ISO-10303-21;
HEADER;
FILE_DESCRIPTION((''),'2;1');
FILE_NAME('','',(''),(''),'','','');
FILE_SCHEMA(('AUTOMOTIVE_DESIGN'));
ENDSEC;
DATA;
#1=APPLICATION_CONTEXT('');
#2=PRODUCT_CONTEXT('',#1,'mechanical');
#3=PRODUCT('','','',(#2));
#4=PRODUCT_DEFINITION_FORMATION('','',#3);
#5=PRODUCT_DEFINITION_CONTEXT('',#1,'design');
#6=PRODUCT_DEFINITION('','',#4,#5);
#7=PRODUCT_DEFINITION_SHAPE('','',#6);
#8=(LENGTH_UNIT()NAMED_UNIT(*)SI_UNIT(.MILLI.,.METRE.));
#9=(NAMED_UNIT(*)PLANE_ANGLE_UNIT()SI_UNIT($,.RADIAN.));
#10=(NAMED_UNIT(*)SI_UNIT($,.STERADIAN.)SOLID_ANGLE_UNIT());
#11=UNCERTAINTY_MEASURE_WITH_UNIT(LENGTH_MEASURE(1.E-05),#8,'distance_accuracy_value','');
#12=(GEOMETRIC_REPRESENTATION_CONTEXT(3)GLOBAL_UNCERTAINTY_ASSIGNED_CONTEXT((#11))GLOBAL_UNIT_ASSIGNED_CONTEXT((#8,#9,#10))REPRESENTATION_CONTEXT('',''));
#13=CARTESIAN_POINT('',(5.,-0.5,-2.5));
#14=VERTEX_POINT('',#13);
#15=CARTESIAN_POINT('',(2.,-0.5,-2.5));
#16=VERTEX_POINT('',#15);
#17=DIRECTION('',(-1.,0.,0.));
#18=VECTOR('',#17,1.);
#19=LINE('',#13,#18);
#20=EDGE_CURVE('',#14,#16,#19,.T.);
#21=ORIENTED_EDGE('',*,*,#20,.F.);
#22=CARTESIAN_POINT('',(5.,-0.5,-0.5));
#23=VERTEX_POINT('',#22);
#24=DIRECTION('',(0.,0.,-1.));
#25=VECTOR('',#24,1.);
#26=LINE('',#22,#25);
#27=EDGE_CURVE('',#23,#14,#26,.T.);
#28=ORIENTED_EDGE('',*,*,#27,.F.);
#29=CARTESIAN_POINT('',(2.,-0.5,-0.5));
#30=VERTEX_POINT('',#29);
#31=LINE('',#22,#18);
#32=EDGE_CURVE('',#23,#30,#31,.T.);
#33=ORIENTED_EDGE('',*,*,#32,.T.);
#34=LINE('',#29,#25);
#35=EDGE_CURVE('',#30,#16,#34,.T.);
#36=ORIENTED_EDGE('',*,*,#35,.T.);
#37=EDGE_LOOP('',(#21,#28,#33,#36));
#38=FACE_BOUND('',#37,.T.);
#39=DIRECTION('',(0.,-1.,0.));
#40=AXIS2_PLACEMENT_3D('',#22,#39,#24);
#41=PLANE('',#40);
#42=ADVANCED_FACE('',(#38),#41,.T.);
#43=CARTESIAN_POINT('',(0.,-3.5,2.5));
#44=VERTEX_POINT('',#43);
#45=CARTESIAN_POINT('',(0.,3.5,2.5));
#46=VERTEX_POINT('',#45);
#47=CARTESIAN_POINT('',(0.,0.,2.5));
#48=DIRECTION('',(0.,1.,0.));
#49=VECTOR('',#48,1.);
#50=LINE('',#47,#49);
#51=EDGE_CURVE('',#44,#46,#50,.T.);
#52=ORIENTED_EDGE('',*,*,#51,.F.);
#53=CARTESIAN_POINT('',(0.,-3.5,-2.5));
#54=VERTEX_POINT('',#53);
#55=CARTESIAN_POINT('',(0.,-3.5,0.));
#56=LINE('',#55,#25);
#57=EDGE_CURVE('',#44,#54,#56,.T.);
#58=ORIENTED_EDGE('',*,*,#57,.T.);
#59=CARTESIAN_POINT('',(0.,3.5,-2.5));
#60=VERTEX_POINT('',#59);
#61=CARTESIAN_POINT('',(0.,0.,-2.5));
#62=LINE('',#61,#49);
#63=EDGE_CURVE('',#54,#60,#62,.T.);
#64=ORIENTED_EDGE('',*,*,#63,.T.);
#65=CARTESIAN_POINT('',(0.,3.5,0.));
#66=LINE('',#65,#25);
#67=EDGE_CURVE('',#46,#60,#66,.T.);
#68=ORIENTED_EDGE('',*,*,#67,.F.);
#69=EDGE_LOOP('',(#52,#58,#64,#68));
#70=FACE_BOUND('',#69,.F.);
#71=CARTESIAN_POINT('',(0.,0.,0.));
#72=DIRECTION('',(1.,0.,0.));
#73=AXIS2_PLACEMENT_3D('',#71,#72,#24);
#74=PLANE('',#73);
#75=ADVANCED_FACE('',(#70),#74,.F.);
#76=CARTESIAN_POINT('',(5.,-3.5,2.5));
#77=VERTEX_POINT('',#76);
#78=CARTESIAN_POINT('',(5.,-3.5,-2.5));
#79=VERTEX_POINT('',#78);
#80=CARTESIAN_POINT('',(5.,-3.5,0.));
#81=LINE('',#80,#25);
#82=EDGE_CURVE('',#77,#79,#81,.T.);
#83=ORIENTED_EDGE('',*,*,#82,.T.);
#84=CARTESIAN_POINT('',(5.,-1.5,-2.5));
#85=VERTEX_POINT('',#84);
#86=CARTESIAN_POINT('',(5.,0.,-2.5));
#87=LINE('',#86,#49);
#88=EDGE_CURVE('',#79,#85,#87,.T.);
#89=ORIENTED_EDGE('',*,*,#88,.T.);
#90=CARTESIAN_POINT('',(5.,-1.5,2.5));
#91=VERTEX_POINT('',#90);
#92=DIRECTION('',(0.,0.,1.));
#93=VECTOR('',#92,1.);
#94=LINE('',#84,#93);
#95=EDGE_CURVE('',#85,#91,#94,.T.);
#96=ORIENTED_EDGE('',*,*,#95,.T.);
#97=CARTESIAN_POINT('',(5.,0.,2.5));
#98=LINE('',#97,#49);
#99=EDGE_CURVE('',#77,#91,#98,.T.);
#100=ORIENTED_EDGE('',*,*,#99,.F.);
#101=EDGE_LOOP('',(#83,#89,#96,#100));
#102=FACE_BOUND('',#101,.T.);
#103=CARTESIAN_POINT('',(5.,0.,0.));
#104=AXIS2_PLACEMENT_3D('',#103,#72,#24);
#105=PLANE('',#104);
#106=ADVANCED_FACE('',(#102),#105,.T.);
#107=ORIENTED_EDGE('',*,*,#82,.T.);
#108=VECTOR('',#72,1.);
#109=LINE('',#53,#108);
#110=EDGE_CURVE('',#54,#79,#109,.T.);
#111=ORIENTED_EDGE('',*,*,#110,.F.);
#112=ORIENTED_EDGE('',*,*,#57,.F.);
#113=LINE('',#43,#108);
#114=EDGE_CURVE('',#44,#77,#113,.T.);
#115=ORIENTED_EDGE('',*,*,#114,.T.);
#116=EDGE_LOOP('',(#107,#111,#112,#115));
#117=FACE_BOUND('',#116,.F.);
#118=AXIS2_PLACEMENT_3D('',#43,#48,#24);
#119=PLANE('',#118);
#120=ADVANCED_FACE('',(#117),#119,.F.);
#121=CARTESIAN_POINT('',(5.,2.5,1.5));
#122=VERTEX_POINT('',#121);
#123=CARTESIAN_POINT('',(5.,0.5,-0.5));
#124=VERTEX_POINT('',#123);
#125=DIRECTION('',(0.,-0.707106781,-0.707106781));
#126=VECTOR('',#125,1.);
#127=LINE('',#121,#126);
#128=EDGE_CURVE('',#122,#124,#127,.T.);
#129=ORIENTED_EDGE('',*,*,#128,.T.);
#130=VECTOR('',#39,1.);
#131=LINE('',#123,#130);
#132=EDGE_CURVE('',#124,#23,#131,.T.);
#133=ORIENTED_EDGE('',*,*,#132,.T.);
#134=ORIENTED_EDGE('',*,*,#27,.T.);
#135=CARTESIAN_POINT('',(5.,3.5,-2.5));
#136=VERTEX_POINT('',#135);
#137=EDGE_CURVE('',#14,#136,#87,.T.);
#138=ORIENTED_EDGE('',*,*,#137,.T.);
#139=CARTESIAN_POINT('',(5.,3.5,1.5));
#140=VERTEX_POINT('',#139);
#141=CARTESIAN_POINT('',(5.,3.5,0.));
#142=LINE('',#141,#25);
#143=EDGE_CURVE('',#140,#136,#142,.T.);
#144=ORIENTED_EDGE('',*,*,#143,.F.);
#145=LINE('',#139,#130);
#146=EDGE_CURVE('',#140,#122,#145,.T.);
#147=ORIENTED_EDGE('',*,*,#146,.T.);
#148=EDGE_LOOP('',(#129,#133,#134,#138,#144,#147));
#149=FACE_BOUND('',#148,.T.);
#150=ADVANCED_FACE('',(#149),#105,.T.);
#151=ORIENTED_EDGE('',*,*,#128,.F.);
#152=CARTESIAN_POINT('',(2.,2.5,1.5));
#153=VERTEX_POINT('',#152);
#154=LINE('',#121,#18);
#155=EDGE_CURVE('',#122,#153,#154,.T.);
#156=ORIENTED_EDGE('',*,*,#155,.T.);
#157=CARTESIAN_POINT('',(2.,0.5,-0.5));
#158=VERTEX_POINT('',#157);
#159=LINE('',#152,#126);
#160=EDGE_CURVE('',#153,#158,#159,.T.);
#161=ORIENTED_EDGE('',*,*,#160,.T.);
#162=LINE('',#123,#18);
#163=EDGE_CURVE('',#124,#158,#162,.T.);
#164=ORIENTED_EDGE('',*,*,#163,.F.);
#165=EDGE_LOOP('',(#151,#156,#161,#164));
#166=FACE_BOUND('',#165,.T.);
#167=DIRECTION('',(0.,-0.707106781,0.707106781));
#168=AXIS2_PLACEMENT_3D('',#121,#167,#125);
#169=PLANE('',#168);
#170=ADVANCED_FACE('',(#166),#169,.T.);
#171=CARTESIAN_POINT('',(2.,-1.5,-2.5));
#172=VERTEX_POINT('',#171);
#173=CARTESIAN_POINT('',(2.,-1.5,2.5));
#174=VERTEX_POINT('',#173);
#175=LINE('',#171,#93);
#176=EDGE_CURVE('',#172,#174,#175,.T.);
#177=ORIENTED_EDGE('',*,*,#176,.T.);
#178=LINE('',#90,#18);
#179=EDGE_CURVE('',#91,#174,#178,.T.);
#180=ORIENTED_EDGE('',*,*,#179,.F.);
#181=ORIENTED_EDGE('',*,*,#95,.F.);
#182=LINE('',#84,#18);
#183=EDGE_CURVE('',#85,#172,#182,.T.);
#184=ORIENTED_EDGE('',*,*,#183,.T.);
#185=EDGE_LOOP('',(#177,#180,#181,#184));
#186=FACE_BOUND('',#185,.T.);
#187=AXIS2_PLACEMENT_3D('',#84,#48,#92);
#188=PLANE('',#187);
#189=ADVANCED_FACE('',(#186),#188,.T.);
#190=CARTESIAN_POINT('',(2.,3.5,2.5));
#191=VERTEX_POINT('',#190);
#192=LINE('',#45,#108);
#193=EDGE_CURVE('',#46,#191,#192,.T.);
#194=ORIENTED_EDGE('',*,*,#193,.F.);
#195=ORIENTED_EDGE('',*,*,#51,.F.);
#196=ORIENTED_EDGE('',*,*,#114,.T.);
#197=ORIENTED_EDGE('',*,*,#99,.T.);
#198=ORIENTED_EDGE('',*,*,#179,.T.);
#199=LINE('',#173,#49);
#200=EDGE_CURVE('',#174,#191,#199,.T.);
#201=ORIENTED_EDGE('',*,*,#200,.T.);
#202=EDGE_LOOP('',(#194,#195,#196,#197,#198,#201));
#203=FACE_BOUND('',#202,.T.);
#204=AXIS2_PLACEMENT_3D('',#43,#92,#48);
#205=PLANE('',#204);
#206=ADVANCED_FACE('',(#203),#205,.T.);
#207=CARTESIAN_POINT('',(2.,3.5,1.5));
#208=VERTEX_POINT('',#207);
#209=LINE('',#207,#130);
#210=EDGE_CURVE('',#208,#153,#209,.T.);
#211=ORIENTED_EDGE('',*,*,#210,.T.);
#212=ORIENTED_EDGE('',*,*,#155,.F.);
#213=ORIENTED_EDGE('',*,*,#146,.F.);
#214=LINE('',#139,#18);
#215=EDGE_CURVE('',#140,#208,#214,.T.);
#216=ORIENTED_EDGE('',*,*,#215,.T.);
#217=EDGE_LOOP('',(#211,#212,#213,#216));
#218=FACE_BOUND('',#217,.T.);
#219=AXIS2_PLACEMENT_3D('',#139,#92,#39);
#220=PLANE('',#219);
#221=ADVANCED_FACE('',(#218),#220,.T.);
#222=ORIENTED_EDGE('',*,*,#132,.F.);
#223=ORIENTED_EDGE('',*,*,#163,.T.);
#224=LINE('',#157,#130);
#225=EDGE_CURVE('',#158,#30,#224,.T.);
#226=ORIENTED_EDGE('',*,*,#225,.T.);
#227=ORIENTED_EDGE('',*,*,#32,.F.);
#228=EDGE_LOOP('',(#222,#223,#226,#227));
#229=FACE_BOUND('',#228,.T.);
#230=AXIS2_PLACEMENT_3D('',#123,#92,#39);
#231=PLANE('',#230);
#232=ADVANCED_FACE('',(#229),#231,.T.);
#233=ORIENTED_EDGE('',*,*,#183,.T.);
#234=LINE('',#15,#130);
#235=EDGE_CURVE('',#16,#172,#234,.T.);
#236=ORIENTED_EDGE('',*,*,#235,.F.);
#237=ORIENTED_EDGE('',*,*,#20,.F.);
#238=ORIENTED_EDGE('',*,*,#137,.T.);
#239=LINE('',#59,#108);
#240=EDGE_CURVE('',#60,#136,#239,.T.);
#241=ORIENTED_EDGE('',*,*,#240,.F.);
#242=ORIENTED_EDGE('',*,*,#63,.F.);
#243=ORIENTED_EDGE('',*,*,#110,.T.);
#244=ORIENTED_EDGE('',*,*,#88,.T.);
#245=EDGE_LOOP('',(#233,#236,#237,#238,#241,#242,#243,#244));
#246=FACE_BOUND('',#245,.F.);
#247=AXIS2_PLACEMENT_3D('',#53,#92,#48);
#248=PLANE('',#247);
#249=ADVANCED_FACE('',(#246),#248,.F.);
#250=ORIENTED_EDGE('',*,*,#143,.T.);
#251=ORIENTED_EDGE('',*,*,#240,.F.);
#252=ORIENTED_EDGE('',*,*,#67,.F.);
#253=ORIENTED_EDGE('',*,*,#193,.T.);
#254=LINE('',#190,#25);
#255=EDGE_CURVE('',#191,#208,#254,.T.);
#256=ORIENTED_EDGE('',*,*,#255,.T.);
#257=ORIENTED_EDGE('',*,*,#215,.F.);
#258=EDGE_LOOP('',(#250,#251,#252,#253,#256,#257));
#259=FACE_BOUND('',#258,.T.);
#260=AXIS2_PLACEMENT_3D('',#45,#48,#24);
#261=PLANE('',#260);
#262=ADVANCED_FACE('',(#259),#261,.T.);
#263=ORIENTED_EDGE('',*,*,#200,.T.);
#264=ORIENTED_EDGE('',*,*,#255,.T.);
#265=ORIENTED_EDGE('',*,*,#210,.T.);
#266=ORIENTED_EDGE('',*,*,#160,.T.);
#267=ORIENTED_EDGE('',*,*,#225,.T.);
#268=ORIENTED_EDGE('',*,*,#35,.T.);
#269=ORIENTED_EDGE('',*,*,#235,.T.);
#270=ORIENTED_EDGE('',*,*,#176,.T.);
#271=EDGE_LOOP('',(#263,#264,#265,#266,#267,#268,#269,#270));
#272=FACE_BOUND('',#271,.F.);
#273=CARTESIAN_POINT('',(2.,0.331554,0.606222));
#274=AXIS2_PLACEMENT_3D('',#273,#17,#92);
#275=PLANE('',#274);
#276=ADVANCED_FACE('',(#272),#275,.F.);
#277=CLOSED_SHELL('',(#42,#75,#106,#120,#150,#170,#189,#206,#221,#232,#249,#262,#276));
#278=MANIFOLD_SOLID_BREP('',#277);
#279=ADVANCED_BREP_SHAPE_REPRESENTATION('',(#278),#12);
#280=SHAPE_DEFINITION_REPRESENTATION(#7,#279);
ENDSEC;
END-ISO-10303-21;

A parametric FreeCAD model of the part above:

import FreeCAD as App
import Part
import Sketcher
Q = App.Units.Quantity


def add_polygon(sketch, points):
    """Adds a closed chain of lines whose ends are joined by coincident constraints."""
    first, n = sketch.GeometryCount, len(points)
    for a, b in zip(points, points[1:] + points[:1]):
        sketch.addGeometry(Part.LineSegment(App.Vector(*a, 0), App.Vector(*b, 0)), False)
    for i in range(n):
        sketch.addConstraint(Sketcher.Constraint("Coincident", first + i, 2, first + (i + 1) % n, 1))

doc = App.newDocument("Part")
body = doc.addObject("PartDesign::Body", "Body")

# Sketch on YZ plane
sketch1 = body.newObject("Sketcher::SketchObject", "Sketch")
sketch1.AttachmentSupport = (doc.getObject("YZ_Plane"), [""])
sketch1.MapMode = "FlatFace"
add_polygon(sketch1, [(3.5, 2.5), (-3.5, 2.5), (-3.5, -2.5), (3.5, -2.5)])  # lines 0-3
sketch1.addConstraint(Sketcher.Constraint("Horizontal", 0))
sketch1.addConstraint(Sketcher.Constraint("Vertical", 1))
sketch1.addConstraint(Sketcher.Constraint("Horizontal", 2))
sketch1.addConstraint(Sketcher.Constraint("Vertical", 3))
sketch1.addConstraint(Sketcher.Constraint("Symmetric", 0, 2, 2, 2, -1, 1))
sketch1.addConstraint(Sketcher.Constraint("DistanceX", 0, 2, 0, 1, Q("7 mm")))
sketch1.addConstraint(Sketcher.Constraint("DistanceY", 1, 2, 1, 1, Q("5 mm")))
pad1 = body.newObject("PartDesign::Pad", "Pad")
pad1.Profile = sketch1
pad1.Length = 5

# Sketch on YZ plane
sketch2 = body.newObject("Sketcher::SketchObject", "Sketch001")
sketch2.AttachmentSupport = (doc.getObject("YZ_Plane"), [""])
sketch2.MapMode = "FlatFace"
sketch2.AttachmentOffset = App.Placement(App.Vector(0, 0, 5), App.Rotation())
add_polygon(sketch2, [(-1.5, 2.5), (-1.5, -2.5), (-0.5, -2.5), (-0.5, -0.5), (0.5, -0.5), (2.5, 1.5), (3.5, 1.5), (3.5, 2.5)])  # lines 0-7
sketch2.addConstraint(Sketcher.Constraint("Vertical", 0))
sketch2.addConstraint(Sketcher.Constraint("Horizontal", 1))
sketch2.addConstraint(Sketcher.Constraint("Vertical", 2))
sketch2.addConstraint(Sketcher.Constraint("Horizontal", 3))
sketch2.addConstraint(Sketcher.Constraint("Horizontal", 5))
sketch2.addConstraint(Sketcher.Constraint("Vertical", 6))
sketch2.addConstraint(Sketcher.Constraint("Horizontal", 7))
sketch2.addConstraint(Sketcher.Constraint("Equal", 1, 3))
sketch2.addConstraint(Sketcher.Constraint("Equal", 3, 5))
sketch2.addConstraint(Sketcher.Constraint("Equal", 7, 0))
sketch2.addConstraint(Sketcher.Constraint("Equal", 5, 6))
sketch2.addConstraint(Sketcher.Constraint("DistanceX", 1, 1, 1, 2, Q("1 mm")))
sketch2.addConstraint(Sketcher.Constraint("DistanceX", 7, 2, 7, 1, Q("5 mm")))
sketch2.addConstraint(Sketcher.Constraint("DistanceY", 2, 1, 2, 2, Q("2 mm")))
sketch2.addConstraint(Sketcher.Constraint("DistanceX", 0, 2, -1, 1, Q("1.5 mm")))
sketch2.addConstraint(Sketcher.Constraint("DistanceY", 0, 2, -1, 1, Q("2.5 mm")))
pocket1 = body.newObject("PartDesign::Pocket", "Pocket")
pocket1.Profile = sketch2
pocket1.Length = 3

doc.recompute()
